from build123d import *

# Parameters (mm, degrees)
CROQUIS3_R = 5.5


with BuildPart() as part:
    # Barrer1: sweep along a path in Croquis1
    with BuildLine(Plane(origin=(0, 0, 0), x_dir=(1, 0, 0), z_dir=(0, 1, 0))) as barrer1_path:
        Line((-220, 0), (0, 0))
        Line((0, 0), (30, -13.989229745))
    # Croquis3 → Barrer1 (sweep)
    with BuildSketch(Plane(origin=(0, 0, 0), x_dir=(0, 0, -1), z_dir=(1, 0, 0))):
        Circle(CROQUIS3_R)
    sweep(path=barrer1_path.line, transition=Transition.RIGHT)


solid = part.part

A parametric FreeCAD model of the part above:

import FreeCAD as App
import Part
import Sketcher
Q = App.Units.Quantity

doc = App.newDocument("Part")
body = doc.addObject("PartDesign::Body", "Body")

sketch1 = doc.addObject("Sketcher::SketchObject", "Sketch")
body.addObject(sketch1)
sketch1.AttachmentSupport = (doc.YZ_Plane, [""])
sketch1.MapMode = "FlatFace"
sketch1.addGeometry(Part.Circle(App.Vector(0, 0, 0), App.Vector(0, 0, 1), 6), False)
sketch1.addConstraint([
    Sketcher.Constraint("Coincident", 0, 3, -1, 1),
    Sketcher.Constraint("Diameter", 0, Q("11 mm")),
])

sketch2 = doc.addObject("Sketcher::SketchObject", "Sketch001")
body.addObject(sketch2)
sketch2.AttachmentSupport = (doc.XZ_Plane, [""])
sketch2.MapMode = "FlatFace"
sketch2.addGeometry([
    Part.LineSegment(App.Vector(-220, 0, 0), App.Vector(0, 0, 0)),
    Part.LineSegment(App.Vector(0, 0, 0), App.Vector(30, 14, 0)),
], False)
sketch2.addConstraint([
    Sketcher.Constraint("Coincident", 0, 2, 1, 1),
    Sketcher.Constraint("Horizontal", 0),
    Sketcher.Constraint("Coincident", 0, 2, -1, 1),
    Sketcher.Constraint("DistanceX", 0, 1, 0, 2, Q("220 mm")),
    Sketcher.Constraint("Angle", 1, Q("25 deg")),
    Sketcher.Constraint("DistanceX", -1, 1, 1, 2, Q("30 mm")),
])
doc.recompute()

additivepipe = doc.addObject("PartDesign::AdditivePipe", "AdditivePipe")
body.addObject(additivepipe)
additivepipe.Profile = sketch1
additivepipe.Spine = (sketch2, ["Edge1", "Edge2"])
additivepipe.Transition = "Right corner"

doc.recompute()
